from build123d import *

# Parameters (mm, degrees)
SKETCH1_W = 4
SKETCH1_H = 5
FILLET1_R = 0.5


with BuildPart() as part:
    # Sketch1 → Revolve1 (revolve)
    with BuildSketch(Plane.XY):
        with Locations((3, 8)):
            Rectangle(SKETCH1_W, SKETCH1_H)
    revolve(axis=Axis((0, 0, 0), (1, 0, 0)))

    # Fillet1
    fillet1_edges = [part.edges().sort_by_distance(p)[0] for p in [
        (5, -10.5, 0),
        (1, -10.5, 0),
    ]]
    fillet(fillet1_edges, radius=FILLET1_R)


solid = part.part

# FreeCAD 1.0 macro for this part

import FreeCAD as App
import Part
import Sketcher


def edges_at(feature, points):
    """Names of the edges that pass closest to the given points."""
    edges = feature.Shape.Edges
    near = lambda p: min(range(len(edges)), key=lambda i: edges[i].distToShape(Part.Vertex(*p))[0])
    return sorted({f"Edge{near(p) + 1}" for p in points})

doc = App.newDocument("Part")
params = doc.addObject("Spreadsheet::Sheet", "Params")
for row, (alias, value) in enumerate([
    ("sketch1_width", "4 mm"),
    ("sketch1_height", "5 mm"),
    ("revolution_angle", "360 deg"),
    ("fillet_radius", "0.5 mm"),
], start=1):
    params.set(f"A{row}", alias)
    params.set(f"B{row}", "=" + value)
    params.setAlias(f"B{row}", alias)

body = doc.addObject("PartDesign::Body", "Body")

# Sketch on XY plane
sketch1 = body.newObject("Sketcher::SketchObject", "Sketch")
sketch1.AttachmentSupport = (doc.getObject("XY_Plane"), [""])
sketch1.MapMode = "FlatFace"
sketch1.addGeometry([
    Part.LineSegment(App.Vector(1, 10.5, 0), App.Vector(1, 5.5, 0)),
    Part.LineSegment(App.Vector(1, 5.5, 0), App.Vector(5, 5.5, 0)),
    Part.LineSegment(App.Vector(5, 5.5, 0), App.Vector(5, 10.5, 0)),
    Part.LineSegment(App.Vector(5, 10.5, 0), App.Vector(1, 10.5, 0)),
], False)
sketch1.addConstraint([
    Sketcher.Constraint("Coincident", 0, 2, 1, 1),
    Sketcher.Constraint("Coincident", 1, 2, 2, 1),
    Sketcher.Constraint("Coincident", 2, 2, 3, 1),
    Sketcher.Constraint("Coincident", 3, 2, 0, 1),
    Sketcher.Constraint("Vertical", 0),
    Sketcher.Constraint("Horizontal", 1),
    Sketcher.Constraint("Vertical", 2),
    Sketcher.Constraint("Horizontal", 3),
    Sketcher.Constraint("DistanceX", 1, 1, 1, 2, 4.0),
    Sketcher.Constraint("DistanceY", 0, 2, 0, 1, 5.0),
    Sketcher.Constraint("DistanceX", -1, 1, 0, 2, 1.0),
    Sketcher.Constraint("DistanceY", -1, 1, 0, 2, 5.5),
])
sketch1.setExpression("Constraints[8]", "Params.sketch1_width")
sketch1.setExpression("Constraints[9]", "Params.sketch1_height")
revolution = body.newObject("PartDesign::Revolution", "Revolution")
revolution.Profile = sketch1
revolution.ReferenceAxis = (sketch1, ["H_Axis"])
revolution.setExpression("Angle", "Params.revolution_angle")
doc.recompute()

fillet = body.newObject("PartDesign::Fillet", "Fillet")
fillet.Base = (revolution, edges_at(revolution, [(5, -10.5, 0), (1, -10.5, 0)]))
fillet.setExpression("Radius", "Params.fillet_radius")

doc.recompute()
